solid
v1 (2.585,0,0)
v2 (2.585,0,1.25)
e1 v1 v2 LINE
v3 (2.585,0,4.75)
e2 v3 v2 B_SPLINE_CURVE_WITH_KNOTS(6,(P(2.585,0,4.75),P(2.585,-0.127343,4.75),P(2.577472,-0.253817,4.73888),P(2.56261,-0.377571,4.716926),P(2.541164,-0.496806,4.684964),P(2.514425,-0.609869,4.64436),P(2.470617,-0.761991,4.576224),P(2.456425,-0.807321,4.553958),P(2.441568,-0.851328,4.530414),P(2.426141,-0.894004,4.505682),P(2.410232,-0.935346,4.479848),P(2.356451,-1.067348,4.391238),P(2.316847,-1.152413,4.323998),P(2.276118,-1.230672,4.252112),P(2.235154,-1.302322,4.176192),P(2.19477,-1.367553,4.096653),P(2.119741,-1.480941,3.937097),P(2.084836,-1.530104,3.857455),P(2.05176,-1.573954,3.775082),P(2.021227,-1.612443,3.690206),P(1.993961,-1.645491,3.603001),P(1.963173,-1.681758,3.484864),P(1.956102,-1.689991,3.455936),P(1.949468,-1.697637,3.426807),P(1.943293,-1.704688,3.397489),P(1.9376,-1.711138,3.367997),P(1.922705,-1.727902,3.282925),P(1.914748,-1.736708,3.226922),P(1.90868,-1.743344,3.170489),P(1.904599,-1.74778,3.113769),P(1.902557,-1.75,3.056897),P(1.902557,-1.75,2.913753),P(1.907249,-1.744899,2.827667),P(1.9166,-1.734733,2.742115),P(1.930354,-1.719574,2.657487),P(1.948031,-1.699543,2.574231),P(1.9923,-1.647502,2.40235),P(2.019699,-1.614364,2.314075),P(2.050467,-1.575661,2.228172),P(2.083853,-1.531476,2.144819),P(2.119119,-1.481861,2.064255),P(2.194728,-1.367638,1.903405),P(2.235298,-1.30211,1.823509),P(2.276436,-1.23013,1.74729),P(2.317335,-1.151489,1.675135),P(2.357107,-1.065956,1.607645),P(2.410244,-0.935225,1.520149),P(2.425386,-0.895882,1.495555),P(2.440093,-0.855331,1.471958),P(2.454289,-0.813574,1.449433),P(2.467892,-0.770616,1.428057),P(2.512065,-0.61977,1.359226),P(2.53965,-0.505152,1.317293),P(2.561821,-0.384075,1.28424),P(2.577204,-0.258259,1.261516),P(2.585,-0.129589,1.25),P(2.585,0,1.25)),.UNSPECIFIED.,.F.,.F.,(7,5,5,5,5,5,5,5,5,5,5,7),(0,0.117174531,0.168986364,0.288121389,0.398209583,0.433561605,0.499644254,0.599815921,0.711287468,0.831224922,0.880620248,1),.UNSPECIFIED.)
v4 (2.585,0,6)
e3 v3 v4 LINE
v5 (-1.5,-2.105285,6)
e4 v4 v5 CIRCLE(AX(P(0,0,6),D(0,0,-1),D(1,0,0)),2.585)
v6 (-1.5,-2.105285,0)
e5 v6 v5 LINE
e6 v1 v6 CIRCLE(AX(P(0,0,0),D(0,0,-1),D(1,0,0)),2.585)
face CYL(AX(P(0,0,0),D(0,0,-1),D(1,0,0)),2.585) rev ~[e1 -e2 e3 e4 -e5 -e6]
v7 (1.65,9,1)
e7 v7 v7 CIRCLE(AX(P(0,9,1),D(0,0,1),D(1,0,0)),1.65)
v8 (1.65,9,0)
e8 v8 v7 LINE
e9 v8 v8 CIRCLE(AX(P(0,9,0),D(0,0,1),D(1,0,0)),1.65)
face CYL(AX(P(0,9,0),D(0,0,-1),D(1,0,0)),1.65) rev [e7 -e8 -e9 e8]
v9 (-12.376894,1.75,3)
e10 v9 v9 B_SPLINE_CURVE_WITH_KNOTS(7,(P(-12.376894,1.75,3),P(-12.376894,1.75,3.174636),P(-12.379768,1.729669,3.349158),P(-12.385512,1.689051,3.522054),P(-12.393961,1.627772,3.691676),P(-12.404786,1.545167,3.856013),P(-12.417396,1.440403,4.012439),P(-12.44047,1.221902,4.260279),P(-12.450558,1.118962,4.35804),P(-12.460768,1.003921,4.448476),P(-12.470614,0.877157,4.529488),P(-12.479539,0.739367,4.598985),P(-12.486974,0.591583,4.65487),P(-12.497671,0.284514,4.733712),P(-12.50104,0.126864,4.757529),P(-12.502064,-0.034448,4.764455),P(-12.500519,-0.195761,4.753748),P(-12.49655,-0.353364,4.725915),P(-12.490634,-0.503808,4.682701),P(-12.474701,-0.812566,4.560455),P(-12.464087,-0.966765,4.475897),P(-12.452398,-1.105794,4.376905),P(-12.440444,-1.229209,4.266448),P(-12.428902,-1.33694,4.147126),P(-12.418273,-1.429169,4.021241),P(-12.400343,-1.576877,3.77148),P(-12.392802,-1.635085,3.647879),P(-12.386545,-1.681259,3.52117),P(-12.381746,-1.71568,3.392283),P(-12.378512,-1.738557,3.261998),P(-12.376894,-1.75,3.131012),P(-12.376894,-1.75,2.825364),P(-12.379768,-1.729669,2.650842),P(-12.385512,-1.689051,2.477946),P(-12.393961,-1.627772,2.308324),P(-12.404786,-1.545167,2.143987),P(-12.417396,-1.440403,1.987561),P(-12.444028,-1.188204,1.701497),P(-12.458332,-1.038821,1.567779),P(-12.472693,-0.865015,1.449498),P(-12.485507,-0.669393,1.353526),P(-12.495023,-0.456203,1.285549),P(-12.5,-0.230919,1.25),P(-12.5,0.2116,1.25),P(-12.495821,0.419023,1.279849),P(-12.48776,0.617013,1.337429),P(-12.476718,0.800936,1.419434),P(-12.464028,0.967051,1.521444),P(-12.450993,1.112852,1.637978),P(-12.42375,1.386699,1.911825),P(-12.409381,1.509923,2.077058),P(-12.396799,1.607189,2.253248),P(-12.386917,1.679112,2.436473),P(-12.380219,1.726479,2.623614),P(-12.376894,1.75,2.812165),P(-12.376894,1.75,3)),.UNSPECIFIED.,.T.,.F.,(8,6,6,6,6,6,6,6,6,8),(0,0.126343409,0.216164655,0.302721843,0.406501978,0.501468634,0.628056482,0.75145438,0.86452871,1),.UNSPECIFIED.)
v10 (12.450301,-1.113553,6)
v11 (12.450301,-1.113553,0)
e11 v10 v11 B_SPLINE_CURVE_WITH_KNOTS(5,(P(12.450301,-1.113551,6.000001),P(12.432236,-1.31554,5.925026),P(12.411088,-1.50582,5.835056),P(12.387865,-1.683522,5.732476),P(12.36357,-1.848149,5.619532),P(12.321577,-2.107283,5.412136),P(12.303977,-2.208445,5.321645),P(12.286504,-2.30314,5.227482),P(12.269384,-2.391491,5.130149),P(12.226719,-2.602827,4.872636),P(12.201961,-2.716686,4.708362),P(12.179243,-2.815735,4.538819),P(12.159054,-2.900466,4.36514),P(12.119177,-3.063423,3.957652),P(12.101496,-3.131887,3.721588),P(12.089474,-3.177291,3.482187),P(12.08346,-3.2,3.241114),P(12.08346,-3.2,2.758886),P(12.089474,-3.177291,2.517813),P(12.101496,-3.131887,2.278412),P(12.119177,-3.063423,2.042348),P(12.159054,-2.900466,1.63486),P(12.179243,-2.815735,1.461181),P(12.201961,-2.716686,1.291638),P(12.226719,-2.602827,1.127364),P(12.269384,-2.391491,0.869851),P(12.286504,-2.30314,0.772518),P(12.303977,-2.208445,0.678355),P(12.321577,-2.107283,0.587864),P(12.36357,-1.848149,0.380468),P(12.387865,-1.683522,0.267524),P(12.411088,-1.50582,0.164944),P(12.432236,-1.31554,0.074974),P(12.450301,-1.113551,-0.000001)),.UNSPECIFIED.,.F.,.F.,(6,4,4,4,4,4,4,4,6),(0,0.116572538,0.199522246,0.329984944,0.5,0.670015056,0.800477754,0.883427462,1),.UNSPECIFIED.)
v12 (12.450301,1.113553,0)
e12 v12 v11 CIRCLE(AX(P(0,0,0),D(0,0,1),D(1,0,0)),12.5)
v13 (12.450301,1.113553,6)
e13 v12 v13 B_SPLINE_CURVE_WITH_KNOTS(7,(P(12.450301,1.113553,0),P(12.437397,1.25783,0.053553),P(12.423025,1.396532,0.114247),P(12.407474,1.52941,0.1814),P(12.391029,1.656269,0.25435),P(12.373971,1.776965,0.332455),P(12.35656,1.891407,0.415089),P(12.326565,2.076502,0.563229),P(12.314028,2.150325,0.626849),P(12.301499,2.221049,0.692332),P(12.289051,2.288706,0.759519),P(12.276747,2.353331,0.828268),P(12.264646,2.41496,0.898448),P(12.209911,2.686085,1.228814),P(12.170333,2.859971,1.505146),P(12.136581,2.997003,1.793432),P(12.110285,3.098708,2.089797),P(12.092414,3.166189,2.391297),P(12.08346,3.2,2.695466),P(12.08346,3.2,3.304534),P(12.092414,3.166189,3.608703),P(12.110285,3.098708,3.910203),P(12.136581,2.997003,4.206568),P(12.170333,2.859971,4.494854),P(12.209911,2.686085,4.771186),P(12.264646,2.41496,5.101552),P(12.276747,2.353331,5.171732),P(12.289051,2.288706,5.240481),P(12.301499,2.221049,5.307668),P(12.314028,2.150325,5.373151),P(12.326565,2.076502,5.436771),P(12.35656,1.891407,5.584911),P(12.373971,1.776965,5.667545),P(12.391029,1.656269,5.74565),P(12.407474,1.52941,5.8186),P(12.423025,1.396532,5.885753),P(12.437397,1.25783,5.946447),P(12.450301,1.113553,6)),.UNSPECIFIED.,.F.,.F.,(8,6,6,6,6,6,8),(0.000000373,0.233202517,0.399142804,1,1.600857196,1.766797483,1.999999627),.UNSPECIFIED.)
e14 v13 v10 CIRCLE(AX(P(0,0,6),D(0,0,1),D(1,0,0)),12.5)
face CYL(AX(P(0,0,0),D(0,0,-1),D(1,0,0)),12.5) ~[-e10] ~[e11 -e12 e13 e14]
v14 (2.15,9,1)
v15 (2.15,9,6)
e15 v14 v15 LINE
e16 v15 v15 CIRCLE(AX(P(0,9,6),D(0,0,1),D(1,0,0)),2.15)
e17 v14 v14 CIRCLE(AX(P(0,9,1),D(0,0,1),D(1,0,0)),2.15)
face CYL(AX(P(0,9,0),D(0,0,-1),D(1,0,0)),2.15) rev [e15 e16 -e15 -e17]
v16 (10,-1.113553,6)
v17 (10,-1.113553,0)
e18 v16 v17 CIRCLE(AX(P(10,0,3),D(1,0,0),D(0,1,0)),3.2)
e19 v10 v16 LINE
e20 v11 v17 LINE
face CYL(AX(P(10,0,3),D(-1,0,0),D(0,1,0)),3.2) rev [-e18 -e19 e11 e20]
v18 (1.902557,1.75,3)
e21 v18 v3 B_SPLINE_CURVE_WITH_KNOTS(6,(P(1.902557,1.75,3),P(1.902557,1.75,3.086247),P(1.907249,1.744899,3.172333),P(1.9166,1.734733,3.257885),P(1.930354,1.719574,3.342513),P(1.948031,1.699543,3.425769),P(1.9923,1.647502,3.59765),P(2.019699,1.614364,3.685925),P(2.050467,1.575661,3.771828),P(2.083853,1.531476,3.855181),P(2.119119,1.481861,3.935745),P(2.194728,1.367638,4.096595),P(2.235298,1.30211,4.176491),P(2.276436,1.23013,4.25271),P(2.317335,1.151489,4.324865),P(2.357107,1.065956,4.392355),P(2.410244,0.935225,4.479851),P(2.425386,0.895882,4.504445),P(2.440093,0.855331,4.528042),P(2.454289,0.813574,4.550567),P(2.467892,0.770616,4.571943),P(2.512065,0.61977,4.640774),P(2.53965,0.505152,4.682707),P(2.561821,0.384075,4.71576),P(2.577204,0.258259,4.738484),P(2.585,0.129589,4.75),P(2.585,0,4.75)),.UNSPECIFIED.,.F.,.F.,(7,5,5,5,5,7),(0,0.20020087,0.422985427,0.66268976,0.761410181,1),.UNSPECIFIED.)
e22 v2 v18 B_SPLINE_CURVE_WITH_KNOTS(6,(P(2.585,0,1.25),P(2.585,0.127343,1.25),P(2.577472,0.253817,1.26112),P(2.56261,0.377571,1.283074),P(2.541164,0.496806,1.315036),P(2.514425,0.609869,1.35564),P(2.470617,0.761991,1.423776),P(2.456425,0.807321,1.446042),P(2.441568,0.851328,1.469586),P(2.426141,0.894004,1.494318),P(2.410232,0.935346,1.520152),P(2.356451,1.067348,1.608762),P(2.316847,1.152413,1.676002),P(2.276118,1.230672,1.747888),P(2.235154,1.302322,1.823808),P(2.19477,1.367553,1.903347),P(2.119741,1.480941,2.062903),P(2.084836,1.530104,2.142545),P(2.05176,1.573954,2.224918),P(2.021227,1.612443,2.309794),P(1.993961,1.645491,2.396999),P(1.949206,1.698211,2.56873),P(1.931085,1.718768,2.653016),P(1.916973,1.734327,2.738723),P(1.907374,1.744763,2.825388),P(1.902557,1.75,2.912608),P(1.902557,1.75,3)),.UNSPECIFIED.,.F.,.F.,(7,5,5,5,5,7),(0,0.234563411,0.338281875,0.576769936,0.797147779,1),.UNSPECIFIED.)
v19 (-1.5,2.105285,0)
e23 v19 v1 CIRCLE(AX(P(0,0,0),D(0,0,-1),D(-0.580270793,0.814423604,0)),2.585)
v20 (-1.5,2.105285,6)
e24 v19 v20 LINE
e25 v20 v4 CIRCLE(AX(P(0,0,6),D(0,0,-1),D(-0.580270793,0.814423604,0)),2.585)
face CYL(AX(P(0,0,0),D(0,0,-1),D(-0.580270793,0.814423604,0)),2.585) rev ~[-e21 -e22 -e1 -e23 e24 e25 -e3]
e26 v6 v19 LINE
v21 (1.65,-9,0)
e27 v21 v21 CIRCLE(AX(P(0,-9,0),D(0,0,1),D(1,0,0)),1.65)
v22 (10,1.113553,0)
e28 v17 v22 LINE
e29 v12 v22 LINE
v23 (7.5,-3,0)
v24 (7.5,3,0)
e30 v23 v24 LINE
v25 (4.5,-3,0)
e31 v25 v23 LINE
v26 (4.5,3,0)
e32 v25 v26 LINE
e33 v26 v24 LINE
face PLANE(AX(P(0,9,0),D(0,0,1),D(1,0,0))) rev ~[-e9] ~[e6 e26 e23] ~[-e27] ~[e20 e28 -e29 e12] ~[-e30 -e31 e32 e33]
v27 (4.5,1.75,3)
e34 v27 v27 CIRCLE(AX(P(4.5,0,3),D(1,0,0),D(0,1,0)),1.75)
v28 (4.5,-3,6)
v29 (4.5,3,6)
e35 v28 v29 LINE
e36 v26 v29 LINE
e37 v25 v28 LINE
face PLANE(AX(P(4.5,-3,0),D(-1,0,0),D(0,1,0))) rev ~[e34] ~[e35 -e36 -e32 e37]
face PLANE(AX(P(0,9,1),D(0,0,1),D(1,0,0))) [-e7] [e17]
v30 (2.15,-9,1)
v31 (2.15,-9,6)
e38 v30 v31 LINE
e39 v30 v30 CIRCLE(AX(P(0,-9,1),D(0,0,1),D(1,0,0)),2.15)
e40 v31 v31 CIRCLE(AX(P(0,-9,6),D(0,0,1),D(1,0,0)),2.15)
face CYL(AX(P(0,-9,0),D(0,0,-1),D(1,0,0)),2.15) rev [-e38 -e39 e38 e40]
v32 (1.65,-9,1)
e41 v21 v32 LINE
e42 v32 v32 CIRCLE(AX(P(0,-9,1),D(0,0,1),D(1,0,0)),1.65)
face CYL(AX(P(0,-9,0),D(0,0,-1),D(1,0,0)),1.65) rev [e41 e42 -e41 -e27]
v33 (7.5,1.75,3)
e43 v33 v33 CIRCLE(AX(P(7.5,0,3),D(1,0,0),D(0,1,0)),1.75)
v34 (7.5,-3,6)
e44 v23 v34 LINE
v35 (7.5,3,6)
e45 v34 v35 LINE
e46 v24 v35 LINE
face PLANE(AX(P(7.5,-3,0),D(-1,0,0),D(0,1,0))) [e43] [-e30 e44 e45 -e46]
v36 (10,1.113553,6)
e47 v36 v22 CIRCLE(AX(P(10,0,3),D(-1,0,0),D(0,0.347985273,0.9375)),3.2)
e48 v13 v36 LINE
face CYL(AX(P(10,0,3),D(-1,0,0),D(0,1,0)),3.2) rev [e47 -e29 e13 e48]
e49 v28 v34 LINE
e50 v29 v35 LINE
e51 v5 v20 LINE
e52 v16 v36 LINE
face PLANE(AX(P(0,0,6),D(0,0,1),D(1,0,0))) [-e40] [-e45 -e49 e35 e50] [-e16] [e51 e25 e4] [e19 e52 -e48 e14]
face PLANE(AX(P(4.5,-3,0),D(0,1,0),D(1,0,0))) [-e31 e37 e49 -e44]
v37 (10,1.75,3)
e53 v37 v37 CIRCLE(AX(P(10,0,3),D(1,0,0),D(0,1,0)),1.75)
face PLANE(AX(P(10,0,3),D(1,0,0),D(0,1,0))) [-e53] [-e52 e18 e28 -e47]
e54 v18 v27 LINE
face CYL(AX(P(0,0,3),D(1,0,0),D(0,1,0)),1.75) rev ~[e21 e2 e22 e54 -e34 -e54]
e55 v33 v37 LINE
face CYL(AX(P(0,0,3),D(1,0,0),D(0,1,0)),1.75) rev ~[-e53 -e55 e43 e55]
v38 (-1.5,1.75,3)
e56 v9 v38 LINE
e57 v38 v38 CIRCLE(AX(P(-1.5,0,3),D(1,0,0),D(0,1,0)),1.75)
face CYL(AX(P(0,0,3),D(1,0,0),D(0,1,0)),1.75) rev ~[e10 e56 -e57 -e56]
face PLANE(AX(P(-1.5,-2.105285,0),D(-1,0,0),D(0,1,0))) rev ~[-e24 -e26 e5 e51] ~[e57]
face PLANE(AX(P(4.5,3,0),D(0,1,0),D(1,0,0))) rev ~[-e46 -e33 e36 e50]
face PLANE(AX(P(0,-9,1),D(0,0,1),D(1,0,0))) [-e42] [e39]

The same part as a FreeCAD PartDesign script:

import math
import FreeCAD as App
import Part
import Sketcher
from FreeCAD import Vector
Q = App.Units.Quantity

doc = App.newDocument("Part")
body = doc.addObject("PartDesign::Body", "Body")

# Sketch on XY plane
sketch1 = body.newObject("Sketcher::SketchObject", "Sketch")
sketch1.AttachmentSupport = (doc.getObject("XY_Plane"), [""])
sketch1.MapMode = "FlatFace"
sketch1.addGeometry(Part.Circle(Vector(0, 0, 0), Vector(0, 0, 1), 12.5), False)
sketch1.addGeometry(Part.Circle(Vector(0, -9, 0), Vector(0, 0, 1), 2.15), False)
sketch1.addGeometry(Part.LineSegment(Vector(7.5, -3, 0), Vector(4.5, -3, 0)), False)
sketch1.addGeometry(Part.LineSegment(Vector(4.5, -3, 0), Vector(4.5, 3, 0)), False)
sketch1.addGeometry(Part.LineSegment(Vector(4.5, 3, 0), Vector(7.5, 3, 0)), False)
sketch1.addGeometry(Part.LineSegment(Vector(7.5, 3, 0), Vector(7.5, -3, 0)), False)
sketch1.addGeometry(Part.ArcOfCircle(Part.Circle(Vector(0, 0, 0), Vector(0, 0, 1), 2.585), math.radians(-125.469591), math.radians(0)), False)
sketch1.addGeometry(Part.LineSegment(Vector(-1.5, -2.105285, 0), Vector(-1.5, 2.105285, 0)), False)
sketch1.addGeometry(Part.ArcOfCircle(Part.Circle(Vector(0, 0, 0), Vector(0, 0, 1), 2.585), math.radians(0), math.radians(125.469591)), False)
sketch1.addGeometry(Part.Circle(Vector(0, 9, 0), Vector(0, 0, 1), 2.15), False)
sketch1.addConstraint(Sketcher.Constraint("Coincident", 2, 2, 3, 1))
sketch1.addConstraint(Sketcher.Constraint("Coincident", 3, 2, 4, 1))
sketch1.addConstraint(Sketcher.Constraint("Coincident", 4, 2, 5, 1))
sketch1.addConstraint(Sketcher.Constraint("Coincident", 5, 2, 2, 1))
sketch1.addConstraint(Sketcher.Constraint("Coincident", 6, 1, 7, 1))
sketch1.addConstraint(Sketcher.Constraint("Coincident", 7, 2, 8, 2))
sketch1.addConstraint(Sketcher.Constraint("Tangent", 8, 1, 6, 2))
sketch1.addConstraint(Sketcher.Constraint("Horizontal", 2))
sketch1.addConstraint(Sketcher.Constraint("Vertical", 3))
sketch1.addConstraint(Sketcher.Constraint("Horizontal", 4))
sketch1.addConstraint(Sketcher.Constraint("Vertical", 5))
sketch1.addConstraint(Sketcher.Constraint("Vertical", 7))
sketch1.addConstraint(Sketcher.Constraint("Coincident", 0, 3, -1, 1))
sketch1.addConstraint(Sketcher.Constraint("Coincident", 6, 3, -1, 1))
sketch1.addConstraint(Sketcher.Constraint("Equal", 6, 8))
sketch1.addConstraint(Sketcher.Constraint("Equal", 1, 9))
sketch1.addConstraint(Sketcher.Constraint("Symmetric", 1, 3, 9, 3, -1, 1))
sketch1.addConstraint(Sketcher.Constraint("PointOnObject", 1, 3, -2))
sketch1.addConstraint(Sketcher.Constraint("PointOnObject", 8, 1, -1))
sketch1.addConstraint(Sketcher.Constraint("Diameter", 0, Q("25 mm")))
sketch1.addConstraint(Sketcher.Constraint("Diameter", 1, Q("4.3 mm")))
sketch1.addConstraint(Sketcher.Constraint("DistanceX", 2, 2, 2, 1, Q("3 mm")))
sketch1.addConstraint(Sketcher.Constraint("DistanceY", 3, 1, 3, 2, Q("6 mm")))
sketch1.addConstraint(Sketcher.Constraint("DistanceY", 1, 3, -1, 1, Q("9 mm")))
sketch1.addConstraint(Sketcher.Constraint("DistanceY", 2, 2, -1, 1, Q("3 mm")))
sketch1.addConstraint(Sketcher.Constraint("Radius", 6, Q("2.585 mm")))
sketch1.addConstraint(Sketcher.Constraint("DistanceX", 6, 1, 2, 2, Q("6 mm")))
sketch1.addConstraint(Sketcher.Constraint("DistanceX", -1, 1, 2, 2, Q("4.5 mm")))
pad1 = body.newObject("PartDesign::Pad", "Pad")
pad1.Profile = sketch1
pad1.Length = 6

# Sketch on XY plane
sketch2 = body.newObject("Sketcher::SketchObject", "Sketch001")
sketch2.AttachmentSupport = (doc.getObject("XY_Plane"), [""])
sketch2.MapMode = "FlatFace"
sketch2.addGeometry(Part.Circle(Vector(0, 9, 0), Vector(0, 0, 1), 2.15), False)
sketch2.addGeometry(Part.Circle(Vector(0, 9, 0), Vector(0, 0, 1), 1.65), False)
sketch2.addGeometry(Part.Circle(Vector(0, -9, 0), Vector(0, 0, 1), 2.15), False)
sketch2.addGeometry(Part.Circle(Vector(0, -9, 0), Vector(0, 0, 1), 1.65), False)
sketch2.addConstraint(Sketcher.Constraint("Coincident", 1, 3, 0, 3))
sketch2.addConstraint(Sketcher.Constraint("Coincident", 3, 3, 2, 3))
sketch2.addConstraint(Sketcher.Constraint("Equal", 0, 2))
sketch2.addConstraint(Sketcher.Constraint("Equal", 1, 3))
sketch2.addConstraint(Sketcher.Constraint("Symmetric", 0, 3, 2, 3, -1, 1))
sketch2.addConstraint(Sketcher.Constraint("PointOnObject", 0, 3, -2))
sketch2.addConstraint(Sketcher.Constraint("Diameter", 0, Q("4.3 mm")))
sketch2.addConstraint(Sketcher.Constraint("Diameter", 1, Q("3.3 mm")))
sketch2.addConstraint(Sketcher.Constraint("DistanceY", -1, 1, 0, 3, Q("9 mm")))
pad2 = body.newObject("PartDesign::Pad", "Pad001")
pad2.Profile = sketch2
pad2.Length = 1

# Sketch on YZ plane
sketch3 = body.newObject("Sketcher::SketchObject", "Sketch002")
sketch3.AttachmentSupport = (doc.getObject("YZ_Plane"), [""])
sketch3.MapMode = "FlatFace"
sketch3.addGeometry(Part.Circle(Vector(0, 3, 0), Vector(0, 0, 1), 1.75), False)
sketch3.addConstraint(Sketcher.Constraint("PointOnObject", 0, 3, -2))
sketch3.addConstraint(Sketcher.Constraint("Diameter", 0, Q("3.5 mm")))
sketch3.addConstraint(Sketcher.Constraint("DistanceY", -1, 1, 0, 3, Q("3 mm")))
pocket1 = body.newObject("PartDesign::Pocket", "Pocket")
pocket1.Profile = sketch3
pocket1.Length = 25
pocket1.Midplane = True

# Sketch on YZ plane
sketch4 = body.newObject("Sketcher::SketchObject", "Sketch003")
sketch4.AttachmentSupport = (doc.getObject("YZ_Plane"), [""])
sketch4.MapMode = "FlatFace"
sketch4.AttachmentOffset = App.Placement(Vector(0, 0, 10), App.Rotation())
sketch4.addGeometry(Part.Circle(Vector(0, 3, 0), Vector(0, 0, 1), 3.2), False)
sketch4.addGeometry(Part.Circle(Vector(0, 3, 0), Vector(0, 0, 1), 1.75), False)
sketch4.addConstraint(Sketcher.Constraint("Coincident", 1, 3, 0, 3))
sketch4.addConstraint(Sketcher.Constraint("PointOnObject", 0, 3, -2))
sketch4.addConstraint(Sketcher.Constraint("Diameter", 0, Q("6.4 mm")))
sketch4.addConstraint(Sketcher.Constraint("Diameter", 1, Q("3.5 mm")))
sketch4.addConstraint(Sketcher.Constraint("DistanceY", -1, 1, 0, 3, Q("3 mm")))
pocket2 = body.newObject("PartDesign::Pocket", "Pocket001")
pocket2.Profile = sketch4
pocket2.Length = 15
pocket2.Reversed = True

doc.recompute()
